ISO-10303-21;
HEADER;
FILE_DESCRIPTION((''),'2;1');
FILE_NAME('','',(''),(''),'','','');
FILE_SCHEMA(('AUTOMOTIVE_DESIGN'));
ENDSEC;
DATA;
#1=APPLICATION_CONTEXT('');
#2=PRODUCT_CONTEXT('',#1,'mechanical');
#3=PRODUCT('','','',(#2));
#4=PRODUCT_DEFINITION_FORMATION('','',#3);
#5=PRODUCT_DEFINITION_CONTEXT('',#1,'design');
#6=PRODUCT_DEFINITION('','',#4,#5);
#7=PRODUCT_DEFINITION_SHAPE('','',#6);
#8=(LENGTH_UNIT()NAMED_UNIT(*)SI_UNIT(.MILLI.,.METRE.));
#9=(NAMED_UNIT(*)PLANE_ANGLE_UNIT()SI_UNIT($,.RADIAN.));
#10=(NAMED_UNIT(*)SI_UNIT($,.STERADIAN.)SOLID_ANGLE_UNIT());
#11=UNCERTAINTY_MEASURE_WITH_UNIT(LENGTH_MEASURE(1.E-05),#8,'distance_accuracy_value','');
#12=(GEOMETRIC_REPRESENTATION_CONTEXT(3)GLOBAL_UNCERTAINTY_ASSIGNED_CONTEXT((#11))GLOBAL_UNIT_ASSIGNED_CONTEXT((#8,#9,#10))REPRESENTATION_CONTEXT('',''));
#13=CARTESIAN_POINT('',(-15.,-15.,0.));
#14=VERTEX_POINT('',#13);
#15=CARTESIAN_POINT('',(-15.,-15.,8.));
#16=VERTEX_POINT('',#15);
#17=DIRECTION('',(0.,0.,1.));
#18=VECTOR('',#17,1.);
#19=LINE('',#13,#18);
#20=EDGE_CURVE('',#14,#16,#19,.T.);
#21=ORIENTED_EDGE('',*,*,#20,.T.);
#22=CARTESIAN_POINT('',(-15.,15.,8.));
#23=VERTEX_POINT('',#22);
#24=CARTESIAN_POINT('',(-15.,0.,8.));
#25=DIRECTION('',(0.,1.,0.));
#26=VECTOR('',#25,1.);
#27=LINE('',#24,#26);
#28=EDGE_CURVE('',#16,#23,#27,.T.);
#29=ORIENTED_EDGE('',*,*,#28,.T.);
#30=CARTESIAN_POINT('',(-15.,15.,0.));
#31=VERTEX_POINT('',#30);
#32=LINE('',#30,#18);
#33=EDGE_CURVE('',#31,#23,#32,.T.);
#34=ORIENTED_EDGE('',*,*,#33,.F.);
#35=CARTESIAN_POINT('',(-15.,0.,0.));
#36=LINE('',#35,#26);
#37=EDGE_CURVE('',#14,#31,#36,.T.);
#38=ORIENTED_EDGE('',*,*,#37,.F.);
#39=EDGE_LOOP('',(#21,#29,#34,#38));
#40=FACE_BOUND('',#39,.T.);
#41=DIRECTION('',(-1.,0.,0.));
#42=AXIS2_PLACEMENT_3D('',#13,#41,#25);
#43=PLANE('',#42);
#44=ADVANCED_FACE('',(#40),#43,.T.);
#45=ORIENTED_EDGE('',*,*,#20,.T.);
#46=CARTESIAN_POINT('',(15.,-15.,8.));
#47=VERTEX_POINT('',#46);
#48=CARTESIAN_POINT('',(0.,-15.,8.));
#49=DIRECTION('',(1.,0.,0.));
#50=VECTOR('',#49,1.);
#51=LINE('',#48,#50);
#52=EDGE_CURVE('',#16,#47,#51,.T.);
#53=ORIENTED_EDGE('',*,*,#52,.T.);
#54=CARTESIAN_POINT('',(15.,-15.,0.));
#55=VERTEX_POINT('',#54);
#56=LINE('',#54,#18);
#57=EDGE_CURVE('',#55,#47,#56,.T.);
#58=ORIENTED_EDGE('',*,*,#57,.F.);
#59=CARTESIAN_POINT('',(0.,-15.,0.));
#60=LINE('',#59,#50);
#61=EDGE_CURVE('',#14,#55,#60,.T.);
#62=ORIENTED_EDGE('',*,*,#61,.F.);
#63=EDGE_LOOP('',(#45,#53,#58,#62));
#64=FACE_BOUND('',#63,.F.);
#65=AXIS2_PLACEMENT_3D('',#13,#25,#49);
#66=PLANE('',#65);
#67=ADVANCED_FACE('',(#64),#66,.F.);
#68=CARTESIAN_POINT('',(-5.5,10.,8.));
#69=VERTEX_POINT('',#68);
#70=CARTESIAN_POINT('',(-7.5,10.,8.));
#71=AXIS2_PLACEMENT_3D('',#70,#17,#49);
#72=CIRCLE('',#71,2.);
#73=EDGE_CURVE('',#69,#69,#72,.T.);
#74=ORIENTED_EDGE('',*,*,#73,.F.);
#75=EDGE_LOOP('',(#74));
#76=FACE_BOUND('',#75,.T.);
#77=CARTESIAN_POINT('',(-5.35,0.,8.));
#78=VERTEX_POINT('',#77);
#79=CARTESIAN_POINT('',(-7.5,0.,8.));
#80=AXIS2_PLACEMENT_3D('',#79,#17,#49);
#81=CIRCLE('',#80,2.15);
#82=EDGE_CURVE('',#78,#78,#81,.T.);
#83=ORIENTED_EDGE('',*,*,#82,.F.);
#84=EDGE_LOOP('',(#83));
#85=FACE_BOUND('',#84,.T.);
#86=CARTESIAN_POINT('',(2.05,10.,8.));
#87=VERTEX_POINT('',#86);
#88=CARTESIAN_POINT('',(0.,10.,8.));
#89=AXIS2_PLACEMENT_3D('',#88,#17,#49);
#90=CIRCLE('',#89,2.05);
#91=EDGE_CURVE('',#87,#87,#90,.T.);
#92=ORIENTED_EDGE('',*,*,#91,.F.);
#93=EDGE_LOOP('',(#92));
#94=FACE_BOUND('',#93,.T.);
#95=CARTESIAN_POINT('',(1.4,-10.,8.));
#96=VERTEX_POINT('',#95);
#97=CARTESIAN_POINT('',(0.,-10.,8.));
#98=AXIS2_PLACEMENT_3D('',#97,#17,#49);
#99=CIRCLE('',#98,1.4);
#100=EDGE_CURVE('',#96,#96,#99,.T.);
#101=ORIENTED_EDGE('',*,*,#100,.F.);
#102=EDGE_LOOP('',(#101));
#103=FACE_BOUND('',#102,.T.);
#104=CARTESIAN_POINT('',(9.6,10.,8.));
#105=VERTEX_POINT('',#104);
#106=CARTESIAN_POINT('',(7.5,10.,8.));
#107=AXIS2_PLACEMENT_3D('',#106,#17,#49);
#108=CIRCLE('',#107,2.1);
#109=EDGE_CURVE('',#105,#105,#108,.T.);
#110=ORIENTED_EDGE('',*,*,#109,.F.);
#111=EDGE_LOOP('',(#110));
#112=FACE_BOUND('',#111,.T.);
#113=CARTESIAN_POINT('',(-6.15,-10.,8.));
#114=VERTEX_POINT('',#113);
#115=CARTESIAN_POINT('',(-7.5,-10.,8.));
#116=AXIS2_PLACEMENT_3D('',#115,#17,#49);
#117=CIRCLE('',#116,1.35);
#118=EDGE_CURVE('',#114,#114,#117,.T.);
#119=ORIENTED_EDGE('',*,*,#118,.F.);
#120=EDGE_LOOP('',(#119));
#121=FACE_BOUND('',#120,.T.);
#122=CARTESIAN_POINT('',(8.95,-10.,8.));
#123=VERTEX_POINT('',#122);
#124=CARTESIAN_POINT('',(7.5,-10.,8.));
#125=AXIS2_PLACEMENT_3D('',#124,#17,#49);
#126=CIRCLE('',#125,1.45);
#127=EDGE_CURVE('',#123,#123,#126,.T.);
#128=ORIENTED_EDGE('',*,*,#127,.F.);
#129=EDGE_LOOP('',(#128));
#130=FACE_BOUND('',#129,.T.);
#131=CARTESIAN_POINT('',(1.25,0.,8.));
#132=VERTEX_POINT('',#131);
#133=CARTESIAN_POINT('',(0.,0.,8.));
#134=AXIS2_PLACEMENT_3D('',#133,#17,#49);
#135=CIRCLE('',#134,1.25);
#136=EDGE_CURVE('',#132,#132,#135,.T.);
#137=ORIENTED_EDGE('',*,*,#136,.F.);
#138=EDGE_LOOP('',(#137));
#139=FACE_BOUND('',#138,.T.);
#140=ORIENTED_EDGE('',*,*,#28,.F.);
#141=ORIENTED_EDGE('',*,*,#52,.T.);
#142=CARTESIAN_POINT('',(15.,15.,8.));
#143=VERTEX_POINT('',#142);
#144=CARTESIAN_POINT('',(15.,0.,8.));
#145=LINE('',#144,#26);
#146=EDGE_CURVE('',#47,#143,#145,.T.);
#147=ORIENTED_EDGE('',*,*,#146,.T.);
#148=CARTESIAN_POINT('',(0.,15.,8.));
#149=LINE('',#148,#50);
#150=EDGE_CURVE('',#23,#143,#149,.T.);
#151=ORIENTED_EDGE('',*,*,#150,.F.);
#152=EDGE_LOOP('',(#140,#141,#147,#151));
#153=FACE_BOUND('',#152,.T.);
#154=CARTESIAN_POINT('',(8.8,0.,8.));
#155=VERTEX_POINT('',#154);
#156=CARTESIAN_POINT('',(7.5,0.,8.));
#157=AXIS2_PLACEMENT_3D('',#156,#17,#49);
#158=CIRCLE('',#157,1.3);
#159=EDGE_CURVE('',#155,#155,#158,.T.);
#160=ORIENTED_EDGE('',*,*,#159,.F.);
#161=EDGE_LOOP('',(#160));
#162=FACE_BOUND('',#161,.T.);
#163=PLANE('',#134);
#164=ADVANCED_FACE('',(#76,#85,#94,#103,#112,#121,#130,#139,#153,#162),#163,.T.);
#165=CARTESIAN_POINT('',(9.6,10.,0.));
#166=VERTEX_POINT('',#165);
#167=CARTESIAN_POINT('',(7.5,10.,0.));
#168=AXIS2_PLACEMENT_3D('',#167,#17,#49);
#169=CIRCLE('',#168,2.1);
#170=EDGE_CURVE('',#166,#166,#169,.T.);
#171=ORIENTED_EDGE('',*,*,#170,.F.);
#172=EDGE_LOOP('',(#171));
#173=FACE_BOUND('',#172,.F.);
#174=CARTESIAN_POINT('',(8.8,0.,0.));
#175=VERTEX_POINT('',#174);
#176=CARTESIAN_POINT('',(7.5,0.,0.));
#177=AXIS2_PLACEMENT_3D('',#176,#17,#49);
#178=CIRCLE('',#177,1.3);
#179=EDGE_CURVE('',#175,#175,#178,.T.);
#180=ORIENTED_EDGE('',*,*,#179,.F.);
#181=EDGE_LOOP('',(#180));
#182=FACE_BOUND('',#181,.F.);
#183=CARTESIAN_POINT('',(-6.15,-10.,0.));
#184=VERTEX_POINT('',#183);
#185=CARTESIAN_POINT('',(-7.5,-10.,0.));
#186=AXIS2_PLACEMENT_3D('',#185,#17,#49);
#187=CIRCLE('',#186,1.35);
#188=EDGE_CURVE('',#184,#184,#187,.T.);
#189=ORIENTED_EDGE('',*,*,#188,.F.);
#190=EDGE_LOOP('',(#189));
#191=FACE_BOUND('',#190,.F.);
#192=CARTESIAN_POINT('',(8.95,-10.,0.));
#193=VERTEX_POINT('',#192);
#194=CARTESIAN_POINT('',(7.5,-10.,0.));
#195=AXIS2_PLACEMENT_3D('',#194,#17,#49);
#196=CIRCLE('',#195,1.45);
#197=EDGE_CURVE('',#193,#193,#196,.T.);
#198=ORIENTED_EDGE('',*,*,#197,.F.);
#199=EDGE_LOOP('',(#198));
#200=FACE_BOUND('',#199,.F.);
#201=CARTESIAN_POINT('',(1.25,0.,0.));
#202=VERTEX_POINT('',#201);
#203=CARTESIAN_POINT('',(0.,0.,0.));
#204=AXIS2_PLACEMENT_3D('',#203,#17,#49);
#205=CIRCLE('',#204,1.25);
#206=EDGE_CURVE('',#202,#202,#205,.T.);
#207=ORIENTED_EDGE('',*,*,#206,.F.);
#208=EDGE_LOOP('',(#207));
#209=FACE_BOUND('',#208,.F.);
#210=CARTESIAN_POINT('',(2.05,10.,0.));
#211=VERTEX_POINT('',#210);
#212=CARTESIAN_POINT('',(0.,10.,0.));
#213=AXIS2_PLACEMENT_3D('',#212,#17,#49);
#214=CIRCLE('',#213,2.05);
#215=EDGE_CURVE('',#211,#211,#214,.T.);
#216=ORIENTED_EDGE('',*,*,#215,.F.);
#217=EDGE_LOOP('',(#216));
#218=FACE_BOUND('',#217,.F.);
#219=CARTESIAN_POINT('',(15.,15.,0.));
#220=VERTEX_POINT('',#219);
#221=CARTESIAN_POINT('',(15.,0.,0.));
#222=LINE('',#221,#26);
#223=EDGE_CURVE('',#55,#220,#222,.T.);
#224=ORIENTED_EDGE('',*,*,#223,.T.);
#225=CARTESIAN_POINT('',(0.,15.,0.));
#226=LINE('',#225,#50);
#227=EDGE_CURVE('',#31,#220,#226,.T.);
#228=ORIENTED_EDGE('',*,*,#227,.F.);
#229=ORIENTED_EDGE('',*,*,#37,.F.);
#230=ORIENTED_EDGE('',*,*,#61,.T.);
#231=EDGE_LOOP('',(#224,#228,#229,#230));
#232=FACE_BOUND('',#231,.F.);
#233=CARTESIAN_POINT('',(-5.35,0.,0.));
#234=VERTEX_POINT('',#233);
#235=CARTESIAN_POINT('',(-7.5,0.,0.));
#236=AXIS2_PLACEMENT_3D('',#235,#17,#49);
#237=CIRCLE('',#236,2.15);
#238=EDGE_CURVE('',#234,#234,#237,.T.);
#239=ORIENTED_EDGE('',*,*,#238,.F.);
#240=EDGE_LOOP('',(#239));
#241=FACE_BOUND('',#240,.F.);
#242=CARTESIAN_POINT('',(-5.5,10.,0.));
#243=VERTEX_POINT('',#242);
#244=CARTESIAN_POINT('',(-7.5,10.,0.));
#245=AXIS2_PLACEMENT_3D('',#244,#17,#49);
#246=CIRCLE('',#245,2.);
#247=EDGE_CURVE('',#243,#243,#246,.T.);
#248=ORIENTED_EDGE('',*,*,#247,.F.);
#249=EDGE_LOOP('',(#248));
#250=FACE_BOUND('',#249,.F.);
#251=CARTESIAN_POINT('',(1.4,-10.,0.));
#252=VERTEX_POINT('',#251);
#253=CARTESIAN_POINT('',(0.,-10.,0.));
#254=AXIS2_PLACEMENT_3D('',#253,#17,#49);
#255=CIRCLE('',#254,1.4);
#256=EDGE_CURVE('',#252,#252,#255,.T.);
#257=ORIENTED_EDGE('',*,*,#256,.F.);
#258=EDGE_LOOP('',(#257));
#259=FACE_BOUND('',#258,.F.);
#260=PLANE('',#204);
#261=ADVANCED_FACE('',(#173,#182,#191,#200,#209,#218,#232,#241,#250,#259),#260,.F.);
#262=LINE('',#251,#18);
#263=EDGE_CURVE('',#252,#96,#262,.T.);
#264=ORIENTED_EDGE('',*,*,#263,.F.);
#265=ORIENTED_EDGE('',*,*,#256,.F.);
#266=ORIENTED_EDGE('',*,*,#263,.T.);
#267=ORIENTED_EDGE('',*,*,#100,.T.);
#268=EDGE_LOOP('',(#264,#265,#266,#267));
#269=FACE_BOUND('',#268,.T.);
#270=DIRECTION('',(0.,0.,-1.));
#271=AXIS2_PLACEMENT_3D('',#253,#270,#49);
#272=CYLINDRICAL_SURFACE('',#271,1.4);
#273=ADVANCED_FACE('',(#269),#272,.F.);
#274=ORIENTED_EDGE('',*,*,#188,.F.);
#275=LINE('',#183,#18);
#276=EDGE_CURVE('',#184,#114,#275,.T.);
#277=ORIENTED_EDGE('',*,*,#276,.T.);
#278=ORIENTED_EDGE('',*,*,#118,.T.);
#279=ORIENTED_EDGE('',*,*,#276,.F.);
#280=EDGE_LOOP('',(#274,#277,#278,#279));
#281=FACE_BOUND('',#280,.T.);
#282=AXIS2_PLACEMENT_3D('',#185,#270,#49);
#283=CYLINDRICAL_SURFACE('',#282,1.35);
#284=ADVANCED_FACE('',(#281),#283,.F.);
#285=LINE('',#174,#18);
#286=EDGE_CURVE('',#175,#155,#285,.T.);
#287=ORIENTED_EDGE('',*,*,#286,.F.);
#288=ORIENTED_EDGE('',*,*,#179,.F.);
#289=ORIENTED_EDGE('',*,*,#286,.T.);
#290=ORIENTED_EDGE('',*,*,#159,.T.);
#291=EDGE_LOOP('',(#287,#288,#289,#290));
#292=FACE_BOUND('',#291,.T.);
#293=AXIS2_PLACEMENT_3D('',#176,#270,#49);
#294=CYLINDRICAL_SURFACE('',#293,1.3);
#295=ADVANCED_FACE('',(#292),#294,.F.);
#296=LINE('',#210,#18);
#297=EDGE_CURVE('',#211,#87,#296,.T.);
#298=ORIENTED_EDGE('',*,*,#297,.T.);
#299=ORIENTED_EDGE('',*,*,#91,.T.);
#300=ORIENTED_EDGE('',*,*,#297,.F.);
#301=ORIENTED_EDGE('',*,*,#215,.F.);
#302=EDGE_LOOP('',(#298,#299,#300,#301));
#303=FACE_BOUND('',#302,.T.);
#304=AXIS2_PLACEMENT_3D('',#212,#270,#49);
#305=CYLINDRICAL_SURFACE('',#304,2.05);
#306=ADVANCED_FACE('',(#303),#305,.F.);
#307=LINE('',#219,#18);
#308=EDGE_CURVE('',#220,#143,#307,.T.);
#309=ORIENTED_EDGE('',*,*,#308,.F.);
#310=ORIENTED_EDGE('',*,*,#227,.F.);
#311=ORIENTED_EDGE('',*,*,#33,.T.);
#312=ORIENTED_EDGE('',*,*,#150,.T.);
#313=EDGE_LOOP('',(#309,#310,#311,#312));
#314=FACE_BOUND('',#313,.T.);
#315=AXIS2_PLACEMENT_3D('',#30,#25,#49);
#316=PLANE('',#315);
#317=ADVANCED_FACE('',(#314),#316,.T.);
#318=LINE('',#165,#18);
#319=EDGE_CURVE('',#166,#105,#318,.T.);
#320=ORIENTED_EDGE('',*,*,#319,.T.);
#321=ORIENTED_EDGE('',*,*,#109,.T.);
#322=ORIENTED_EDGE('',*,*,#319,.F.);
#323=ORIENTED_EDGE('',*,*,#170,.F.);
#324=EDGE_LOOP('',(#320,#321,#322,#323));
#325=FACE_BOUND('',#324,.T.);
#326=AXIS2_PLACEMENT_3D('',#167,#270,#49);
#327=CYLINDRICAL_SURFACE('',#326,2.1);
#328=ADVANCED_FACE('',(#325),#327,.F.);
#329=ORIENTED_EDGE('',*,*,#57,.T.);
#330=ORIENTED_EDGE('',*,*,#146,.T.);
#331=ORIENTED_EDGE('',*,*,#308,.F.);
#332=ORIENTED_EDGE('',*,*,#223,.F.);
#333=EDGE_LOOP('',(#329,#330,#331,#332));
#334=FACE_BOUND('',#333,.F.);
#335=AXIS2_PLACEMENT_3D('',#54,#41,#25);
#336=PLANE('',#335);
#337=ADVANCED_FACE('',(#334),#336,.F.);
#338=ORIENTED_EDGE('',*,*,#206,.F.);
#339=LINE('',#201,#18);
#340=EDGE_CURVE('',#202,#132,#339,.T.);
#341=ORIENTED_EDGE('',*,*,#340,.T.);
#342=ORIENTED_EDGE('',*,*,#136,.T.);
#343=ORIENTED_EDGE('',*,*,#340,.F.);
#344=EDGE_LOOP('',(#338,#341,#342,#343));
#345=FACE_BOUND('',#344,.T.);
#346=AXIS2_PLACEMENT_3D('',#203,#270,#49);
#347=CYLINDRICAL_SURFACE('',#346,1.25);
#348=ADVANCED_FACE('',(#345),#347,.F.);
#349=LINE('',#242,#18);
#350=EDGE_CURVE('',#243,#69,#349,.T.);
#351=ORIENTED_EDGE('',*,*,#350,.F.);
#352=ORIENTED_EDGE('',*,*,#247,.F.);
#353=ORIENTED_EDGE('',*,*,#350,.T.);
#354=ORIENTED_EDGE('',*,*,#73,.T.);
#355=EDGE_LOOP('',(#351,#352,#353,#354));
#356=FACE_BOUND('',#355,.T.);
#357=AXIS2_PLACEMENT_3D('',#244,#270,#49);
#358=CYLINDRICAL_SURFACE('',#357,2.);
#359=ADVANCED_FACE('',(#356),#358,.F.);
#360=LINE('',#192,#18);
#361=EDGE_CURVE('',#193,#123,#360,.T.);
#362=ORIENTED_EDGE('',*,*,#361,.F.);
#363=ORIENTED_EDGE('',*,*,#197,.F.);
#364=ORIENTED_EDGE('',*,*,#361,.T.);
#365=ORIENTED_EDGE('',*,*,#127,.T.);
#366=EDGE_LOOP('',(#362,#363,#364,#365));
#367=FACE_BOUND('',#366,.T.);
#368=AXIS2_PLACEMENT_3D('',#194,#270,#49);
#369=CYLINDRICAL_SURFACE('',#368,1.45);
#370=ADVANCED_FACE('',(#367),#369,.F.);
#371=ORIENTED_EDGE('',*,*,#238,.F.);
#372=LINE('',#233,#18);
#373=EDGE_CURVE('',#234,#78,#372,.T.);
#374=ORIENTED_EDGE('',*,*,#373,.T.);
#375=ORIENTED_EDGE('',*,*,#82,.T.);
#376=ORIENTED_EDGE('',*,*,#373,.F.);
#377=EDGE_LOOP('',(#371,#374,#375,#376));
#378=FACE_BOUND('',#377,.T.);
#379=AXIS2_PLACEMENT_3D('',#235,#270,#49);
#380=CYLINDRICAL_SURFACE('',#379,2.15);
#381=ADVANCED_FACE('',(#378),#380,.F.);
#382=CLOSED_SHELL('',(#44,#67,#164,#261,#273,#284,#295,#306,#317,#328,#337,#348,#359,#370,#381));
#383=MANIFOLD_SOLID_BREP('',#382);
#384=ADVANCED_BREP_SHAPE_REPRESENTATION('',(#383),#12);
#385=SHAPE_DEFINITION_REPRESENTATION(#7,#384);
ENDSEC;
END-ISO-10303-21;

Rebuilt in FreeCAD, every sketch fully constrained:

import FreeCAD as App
import Part
import Sketcher
from FreeCAD import Vector


def add_polygon(sketch, points):
    """Adds a closed chain of lines whose ends are joined by coincident constraints."""
    first, n = sketch.GeometryCount, len(points)
    for a, b in zip(points, points[1:] + points[:1]):
        sketch.addGeometry(Part.LineSegment(App.Vector(*a, 0), App.Vector(*b, 0)), False)
    for i in range(n):
        sketch.addConstraint(Sketcher.Constraint("Coincident", first + i, 2, first + (i + 1) % n, 1))

doc = App.newDocument("Part")
body = doc.addObject("PartDesign::Body", "Body")

# Sketch on XY plane
sketch1 = body.newObject("Sketcher::SketchObject", "Sketch")
sketch1.AttachmentSupport = (doc.getObject("XY_Plane"), [""])
sketch1.MapMode = "FlatFace"
add_polygon(sketch1, [(-15, 15), (-15, -15), (15, -15), (15, 15)])  # lines 0-3
sketch1.addGeometry(Part.Circle(Vector(-7.5, -10, 0), Vector(0, 0, 1), 1.4), False)  # 4
sketch1.addGeometry(Part.Circle(Vector(-7.5, 0, 0), Vector(0, 0, 1), 2.1), False)  # 5
sketch1.addGeometry(Part.Circle(Vector(0, -10, 0), Vector(0, 0, 1), 1.4), False)  # 6
sketch1.addGeometry(Part.Circle(Vector(7.5, -10, 0), Vector(0, 0, 1), 1.4), False)  # 7
sketch1.addGeometry(Part.Circle(Vector(0, 0, 0), Vector(0, 0, 1), 1.2), False)  # 8
sketch1.addGeometry(Part.Circle(Vector(7.5, 0, 0), Vector(0, 0, 1), 1.3), False)  # 9
sketch1.addGeometry(Part.Circle(Vector(-7.5, 10, 0), Vector(0, 0, 1), 2), False)  # 10
sketch1.addGeometry(Part.Circle(Vector(0, 10, 0), Vector(0, 0, 1), 2), False)  # 11
sketch1.addGeometry(Part.Circle(Vector(7.5, 10, 0), Vector(0, 0, 1), 2.1), False)  # 12
sketch1.addConstraint([
    Sketcher.Constraint("Vertical", 0),
    Sketcher.Constraint("Horizontal", 1),
    Sketcher.Constraint("Vertical", 2),
    Sketcher.Constraint("Horizontal", 3),
    Sketcher.Constraint("Coincident", 8, 3, -1, 1),
    Sketcher.Constraint("Symmetric", 5, 3, 9, 3, -1, 1),
    Sketcher.Constraint("Symmetric", 7, 3, 10, 3, -1, 1),
    Sketcher.Constraint("Symmetric", 6, 3, 11, 3, -1, 1),
    Sketcher.Constraint("Symmetric", 4, 3, 12, 3, -1, 1),
    Sketcher.Constraint("Symmetric", 0, 2, 2, 2, -1, 1),
    Sketcher.Constraint("Symmetric", 4, 3, 7, 3, -2),
    Sketcher.Constraint("PointOnObject", 5, 3, -1),
    Sketcher.Constraint("PointOnObject", 6, 3, -2),
    Sketcher.Constraint("Horizontal", 4, 3, 6, 3),
    Sketcher.Constraint("Vertical", 4, 3, 5, 3),
    Sketcher.Constraint("Equal", 3, 0),
    Sketcher.Constraint("Diameter", 10, 4.0),
    Sketcher.Constraint("Diameter", 4, 2.7),
    Sketcher.Constraint("Diameter", 5, 4.3),
    Sketcher.Constraint("Diameter", 6, 2.8),
    Sketcher.Constraint("Diameter", 7, 2.9),
    Sketcher.Constraint("Diameter", 8, 2.5),
    Sketcher.Constraint("Diameter", 9, 2.6),
    Sketcher.Constraint("Diameter", 11, 4.1),
    Sketcher.Constraint("Diameter", 12, 4.2),
    Sketcher.Constraint("DistanceX", 1, 1, 1, 2, 30.0),
    Sketcher.Constraint("DistanceY", 4, 3, -1, 1, 10.0),
    Sketcher.Constraint("DistanceX", 4, 3, 7, 3, 15.0),
])
pad1 = body.newObject("PartDesign::Pad", "Pad")
pad1.Profile = sketch1
pad1.Length = 8

doc.recompute()
